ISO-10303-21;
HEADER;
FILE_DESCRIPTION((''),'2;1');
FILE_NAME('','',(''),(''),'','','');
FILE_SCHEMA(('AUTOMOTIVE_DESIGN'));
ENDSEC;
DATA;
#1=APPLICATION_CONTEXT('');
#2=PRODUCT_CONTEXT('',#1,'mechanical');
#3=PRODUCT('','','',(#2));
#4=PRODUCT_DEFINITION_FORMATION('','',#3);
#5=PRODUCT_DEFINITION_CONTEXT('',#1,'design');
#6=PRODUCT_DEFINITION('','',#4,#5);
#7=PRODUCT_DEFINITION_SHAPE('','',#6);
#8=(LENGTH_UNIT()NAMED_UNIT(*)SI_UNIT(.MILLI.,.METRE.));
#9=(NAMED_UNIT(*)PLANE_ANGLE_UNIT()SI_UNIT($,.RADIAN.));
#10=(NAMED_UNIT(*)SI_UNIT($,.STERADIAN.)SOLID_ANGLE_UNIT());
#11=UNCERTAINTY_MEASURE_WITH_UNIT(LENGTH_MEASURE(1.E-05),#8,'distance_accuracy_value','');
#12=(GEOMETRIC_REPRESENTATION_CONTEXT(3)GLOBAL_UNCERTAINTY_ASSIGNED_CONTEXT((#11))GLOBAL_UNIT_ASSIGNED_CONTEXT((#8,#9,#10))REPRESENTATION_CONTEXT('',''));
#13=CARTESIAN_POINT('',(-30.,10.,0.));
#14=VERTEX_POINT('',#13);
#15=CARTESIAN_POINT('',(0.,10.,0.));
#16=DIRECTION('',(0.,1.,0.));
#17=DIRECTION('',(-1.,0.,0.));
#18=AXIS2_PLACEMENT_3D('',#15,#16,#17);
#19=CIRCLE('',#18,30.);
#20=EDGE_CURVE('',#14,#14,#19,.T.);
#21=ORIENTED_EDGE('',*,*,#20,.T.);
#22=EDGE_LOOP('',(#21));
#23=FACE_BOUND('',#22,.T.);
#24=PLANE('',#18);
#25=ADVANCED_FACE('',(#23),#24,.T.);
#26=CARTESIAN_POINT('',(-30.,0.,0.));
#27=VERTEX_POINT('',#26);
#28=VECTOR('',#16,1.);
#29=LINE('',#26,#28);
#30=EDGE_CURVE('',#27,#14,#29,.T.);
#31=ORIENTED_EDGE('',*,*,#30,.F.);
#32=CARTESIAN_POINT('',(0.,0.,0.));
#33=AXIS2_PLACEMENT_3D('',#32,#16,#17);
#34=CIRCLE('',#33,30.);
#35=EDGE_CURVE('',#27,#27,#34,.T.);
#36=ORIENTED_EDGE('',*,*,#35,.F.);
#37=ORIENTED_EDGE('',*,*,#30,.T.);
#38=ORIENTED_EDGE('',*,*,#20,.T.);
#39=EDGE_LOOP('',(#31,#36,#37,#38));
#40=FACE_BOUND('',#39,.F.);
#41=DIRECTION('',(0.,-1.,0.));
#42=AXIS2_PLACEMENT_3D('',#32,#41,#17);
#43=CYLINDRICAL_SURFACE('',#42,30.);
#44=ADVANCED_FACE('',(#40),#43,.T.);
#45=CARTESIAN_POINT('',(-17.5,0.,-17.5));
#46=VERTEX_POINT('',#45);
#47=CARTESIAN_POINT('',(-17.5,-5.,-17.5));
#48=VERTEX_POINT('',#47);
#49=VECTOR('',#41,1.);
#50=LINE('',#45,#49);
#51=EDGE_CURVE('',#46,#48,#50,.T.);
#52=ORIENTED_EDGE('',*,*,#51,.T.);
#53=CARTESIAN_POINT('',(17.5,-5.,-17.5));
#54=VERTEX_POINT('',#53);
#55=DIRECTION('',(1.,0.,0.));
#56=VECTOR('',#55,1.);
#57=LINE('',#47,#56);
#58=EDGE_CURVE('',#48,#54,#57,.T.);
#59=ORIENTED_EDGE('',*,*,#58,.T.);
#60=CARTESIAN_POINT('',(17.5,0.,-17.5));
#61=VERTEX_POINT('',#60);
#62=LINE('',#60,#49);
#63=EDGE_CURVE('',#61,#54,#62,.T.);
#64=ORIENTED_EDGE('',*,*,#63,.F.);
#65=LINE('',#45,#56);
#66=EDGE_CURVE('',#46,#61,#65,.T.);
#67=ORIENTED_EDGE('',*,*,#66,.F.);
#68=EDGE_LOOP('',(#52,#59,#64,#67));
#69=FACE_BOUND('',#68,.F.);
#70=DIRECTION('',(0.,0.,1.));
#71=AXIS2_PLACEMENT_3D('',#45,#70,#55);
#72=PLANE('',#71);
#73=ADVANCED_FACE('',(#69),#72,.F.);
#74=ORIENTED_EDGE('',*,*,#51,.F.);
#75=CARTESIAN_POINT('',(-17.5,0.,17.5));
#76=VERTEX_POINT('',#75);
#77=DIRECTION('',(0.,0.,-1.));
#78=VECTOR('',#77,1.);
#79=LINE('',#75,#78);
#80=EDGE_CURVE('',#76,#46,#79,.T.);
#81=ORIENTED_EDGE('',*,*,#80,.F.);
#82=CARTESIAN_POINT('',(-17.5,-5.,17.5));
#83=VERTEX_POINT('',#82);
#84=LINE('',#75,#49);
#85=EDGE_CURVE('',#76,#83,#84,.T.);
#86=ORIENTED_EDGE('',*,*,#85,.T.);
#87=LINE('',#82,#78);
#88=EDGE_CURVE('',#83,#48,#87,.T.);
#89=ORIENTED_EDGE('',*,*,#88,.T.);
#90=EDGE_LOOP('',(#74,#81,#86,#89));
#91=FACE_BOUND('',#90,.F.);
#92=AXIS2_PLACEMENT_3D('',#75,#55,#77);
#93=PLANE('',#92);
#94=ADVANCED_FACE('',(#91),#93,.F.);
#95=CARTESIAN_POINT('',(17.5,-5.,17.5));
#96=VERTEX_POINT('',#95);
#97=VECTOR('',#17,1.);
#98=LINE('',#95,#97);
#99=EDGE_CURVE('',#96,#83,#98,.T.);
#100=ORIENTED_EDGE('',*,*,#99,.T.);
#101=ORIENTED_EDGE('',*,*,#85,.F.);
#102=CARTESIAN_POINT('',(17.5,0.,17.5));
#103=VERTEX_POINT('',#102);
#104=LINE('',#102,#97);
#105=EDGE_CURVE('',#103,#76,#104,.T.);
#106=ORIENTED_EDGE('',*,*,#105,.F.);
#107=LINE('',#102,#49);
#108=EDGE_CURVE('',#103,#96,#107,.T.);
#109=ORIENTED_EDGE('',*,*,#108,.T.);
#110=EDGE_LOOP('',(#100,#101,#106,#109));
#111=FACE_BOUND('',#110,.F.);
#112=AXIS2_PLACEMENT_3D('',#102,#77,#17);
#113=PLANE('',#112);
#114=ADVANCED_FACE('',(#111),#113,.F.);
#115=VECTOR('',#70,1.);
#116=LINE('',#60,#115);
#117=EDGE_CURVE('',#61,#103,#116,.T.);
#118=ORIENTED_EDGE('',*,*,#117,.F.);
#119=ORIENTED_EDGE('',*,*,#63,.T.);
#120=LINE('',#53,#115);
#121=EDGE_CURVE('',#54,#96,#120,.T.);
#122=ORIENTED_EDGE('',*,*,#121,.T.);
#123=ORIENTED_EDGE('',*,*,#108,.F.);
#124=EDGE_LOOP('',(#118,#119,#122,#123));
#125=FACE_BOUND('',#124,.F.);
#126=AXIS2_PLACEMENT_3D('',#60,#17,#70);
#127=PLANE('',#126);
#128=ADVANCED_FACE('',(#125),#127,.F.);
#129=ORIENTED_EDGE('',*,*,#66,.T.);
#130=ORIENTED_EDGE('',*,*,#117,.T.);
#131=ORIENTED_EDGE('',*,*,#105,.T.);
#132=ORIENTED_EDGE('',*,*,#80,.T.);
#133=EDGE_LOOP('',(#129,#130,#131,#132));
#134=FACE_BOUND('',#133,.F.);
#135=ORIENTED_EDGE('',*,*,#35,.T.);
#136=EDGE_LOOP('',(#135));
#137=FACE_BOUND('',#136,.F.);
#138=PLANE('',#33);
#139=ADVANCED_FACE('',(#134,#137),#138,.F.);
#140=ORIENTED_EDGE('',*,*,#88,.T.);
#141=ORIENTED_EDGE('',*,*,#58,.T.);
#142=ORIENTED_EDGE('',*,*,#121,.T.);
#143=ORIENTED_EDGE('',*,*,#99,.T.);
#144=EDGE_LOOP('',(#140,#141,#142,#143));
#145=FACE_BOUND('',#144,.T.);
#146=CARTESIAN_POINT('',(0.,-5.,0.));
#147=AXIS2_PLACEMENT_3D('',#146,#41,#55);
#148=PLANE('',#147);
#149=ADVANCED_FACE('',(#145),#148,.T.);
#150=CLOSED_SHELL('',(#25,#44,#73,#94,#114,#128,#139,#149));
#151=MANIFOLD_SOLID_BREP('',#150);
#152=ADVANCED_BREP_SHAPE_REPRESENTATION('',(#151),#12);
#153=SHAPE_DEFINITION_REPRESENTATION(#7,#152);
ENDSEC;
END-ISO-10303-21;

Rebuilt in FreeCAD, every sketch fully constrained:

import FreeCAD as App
import Part
import Sketcher

V = App.Vector


def add_polygon(sketch, points):
    """Adds a closed chain of lines whose ends are joined by coincident constraints."""
    first, n = sketch.GeometryCount, len(points)
    for a, b in zip(points, points[1:] + points[:1]):
        sketch.addGeometry(Part.LineSegment(App.Vector(*a, 0), App.Vector(*b, 0)), False)
    for i in range(n):
        sketch.addConstraint(Sketcher.Constraint("Coincident", first + i, 2, first + (i + 1) % n, 1))

doc = App.newDocument("Part")
body = doc.addObject("PartDesign::Body", "Body")

sketch1 = body.newObject("Sketcher::SketchObject", "Sketch")
sketch1.AttachmentSupport = (doc.getObject("XZ_Plane"), [""])
sketch1.MapMode = "FlatFace"
sketch1.addGeometry(Part.Circle(V(0, 0, 0), V(0, 0, 1), 30), False)
sketch1.addConstraint(Sketcher.Constraint("Coincident", 0, 3, -1, 1))
sketch1.addConstraint(Sketcher.Constraint("Diameter", 0, 60.0))
pad1 = body.newObject("PartDesign::Pad", "Pad")
pad1.Profile = sketch1
pad1.Length = 10
pad1.Reversed = True

sketch2 = body.newObject("Sketcher::SketchObject", "Sketch001")
sketch2.AttachmentSupport = (doc.getObject("XZ_Plane"), [""])
sketch2.MapMode = "FlatFace"
add_polygon(sketch2, [(-17.5, 17.5), (-17.5, -17.5), (17.5, -17.5), (17.5, 17.5)])
sketch2.addConstraint(Sketcher.Constraint("Vertical", 0))
sketch2.addConstraint(Sketcher.Constraint("Horizontal", 1))
sketch2.addConstraint(Sketcher.Constraint("Vertical", 2))
sketch2.addConstraint(Sketcher.Constraint("Horizontal", 3))
sketch2.addConstraint(Sketcher.Constraint("Symmetric", 0, 2, 2, 2, -1, 1))
sketch2.addConstraint(Sketcher.Constraint("Equal", 3, 0))
sketch2.addConstraint(Sketcher.Constraint("DistanceX", 1, 1, 1, 2, 35.0))
pad2 = body.newObject("PartDesign::Pad", "Pad001")
pad2.Profile = sketch2
pad2.Length = 5

doc.recompute()
